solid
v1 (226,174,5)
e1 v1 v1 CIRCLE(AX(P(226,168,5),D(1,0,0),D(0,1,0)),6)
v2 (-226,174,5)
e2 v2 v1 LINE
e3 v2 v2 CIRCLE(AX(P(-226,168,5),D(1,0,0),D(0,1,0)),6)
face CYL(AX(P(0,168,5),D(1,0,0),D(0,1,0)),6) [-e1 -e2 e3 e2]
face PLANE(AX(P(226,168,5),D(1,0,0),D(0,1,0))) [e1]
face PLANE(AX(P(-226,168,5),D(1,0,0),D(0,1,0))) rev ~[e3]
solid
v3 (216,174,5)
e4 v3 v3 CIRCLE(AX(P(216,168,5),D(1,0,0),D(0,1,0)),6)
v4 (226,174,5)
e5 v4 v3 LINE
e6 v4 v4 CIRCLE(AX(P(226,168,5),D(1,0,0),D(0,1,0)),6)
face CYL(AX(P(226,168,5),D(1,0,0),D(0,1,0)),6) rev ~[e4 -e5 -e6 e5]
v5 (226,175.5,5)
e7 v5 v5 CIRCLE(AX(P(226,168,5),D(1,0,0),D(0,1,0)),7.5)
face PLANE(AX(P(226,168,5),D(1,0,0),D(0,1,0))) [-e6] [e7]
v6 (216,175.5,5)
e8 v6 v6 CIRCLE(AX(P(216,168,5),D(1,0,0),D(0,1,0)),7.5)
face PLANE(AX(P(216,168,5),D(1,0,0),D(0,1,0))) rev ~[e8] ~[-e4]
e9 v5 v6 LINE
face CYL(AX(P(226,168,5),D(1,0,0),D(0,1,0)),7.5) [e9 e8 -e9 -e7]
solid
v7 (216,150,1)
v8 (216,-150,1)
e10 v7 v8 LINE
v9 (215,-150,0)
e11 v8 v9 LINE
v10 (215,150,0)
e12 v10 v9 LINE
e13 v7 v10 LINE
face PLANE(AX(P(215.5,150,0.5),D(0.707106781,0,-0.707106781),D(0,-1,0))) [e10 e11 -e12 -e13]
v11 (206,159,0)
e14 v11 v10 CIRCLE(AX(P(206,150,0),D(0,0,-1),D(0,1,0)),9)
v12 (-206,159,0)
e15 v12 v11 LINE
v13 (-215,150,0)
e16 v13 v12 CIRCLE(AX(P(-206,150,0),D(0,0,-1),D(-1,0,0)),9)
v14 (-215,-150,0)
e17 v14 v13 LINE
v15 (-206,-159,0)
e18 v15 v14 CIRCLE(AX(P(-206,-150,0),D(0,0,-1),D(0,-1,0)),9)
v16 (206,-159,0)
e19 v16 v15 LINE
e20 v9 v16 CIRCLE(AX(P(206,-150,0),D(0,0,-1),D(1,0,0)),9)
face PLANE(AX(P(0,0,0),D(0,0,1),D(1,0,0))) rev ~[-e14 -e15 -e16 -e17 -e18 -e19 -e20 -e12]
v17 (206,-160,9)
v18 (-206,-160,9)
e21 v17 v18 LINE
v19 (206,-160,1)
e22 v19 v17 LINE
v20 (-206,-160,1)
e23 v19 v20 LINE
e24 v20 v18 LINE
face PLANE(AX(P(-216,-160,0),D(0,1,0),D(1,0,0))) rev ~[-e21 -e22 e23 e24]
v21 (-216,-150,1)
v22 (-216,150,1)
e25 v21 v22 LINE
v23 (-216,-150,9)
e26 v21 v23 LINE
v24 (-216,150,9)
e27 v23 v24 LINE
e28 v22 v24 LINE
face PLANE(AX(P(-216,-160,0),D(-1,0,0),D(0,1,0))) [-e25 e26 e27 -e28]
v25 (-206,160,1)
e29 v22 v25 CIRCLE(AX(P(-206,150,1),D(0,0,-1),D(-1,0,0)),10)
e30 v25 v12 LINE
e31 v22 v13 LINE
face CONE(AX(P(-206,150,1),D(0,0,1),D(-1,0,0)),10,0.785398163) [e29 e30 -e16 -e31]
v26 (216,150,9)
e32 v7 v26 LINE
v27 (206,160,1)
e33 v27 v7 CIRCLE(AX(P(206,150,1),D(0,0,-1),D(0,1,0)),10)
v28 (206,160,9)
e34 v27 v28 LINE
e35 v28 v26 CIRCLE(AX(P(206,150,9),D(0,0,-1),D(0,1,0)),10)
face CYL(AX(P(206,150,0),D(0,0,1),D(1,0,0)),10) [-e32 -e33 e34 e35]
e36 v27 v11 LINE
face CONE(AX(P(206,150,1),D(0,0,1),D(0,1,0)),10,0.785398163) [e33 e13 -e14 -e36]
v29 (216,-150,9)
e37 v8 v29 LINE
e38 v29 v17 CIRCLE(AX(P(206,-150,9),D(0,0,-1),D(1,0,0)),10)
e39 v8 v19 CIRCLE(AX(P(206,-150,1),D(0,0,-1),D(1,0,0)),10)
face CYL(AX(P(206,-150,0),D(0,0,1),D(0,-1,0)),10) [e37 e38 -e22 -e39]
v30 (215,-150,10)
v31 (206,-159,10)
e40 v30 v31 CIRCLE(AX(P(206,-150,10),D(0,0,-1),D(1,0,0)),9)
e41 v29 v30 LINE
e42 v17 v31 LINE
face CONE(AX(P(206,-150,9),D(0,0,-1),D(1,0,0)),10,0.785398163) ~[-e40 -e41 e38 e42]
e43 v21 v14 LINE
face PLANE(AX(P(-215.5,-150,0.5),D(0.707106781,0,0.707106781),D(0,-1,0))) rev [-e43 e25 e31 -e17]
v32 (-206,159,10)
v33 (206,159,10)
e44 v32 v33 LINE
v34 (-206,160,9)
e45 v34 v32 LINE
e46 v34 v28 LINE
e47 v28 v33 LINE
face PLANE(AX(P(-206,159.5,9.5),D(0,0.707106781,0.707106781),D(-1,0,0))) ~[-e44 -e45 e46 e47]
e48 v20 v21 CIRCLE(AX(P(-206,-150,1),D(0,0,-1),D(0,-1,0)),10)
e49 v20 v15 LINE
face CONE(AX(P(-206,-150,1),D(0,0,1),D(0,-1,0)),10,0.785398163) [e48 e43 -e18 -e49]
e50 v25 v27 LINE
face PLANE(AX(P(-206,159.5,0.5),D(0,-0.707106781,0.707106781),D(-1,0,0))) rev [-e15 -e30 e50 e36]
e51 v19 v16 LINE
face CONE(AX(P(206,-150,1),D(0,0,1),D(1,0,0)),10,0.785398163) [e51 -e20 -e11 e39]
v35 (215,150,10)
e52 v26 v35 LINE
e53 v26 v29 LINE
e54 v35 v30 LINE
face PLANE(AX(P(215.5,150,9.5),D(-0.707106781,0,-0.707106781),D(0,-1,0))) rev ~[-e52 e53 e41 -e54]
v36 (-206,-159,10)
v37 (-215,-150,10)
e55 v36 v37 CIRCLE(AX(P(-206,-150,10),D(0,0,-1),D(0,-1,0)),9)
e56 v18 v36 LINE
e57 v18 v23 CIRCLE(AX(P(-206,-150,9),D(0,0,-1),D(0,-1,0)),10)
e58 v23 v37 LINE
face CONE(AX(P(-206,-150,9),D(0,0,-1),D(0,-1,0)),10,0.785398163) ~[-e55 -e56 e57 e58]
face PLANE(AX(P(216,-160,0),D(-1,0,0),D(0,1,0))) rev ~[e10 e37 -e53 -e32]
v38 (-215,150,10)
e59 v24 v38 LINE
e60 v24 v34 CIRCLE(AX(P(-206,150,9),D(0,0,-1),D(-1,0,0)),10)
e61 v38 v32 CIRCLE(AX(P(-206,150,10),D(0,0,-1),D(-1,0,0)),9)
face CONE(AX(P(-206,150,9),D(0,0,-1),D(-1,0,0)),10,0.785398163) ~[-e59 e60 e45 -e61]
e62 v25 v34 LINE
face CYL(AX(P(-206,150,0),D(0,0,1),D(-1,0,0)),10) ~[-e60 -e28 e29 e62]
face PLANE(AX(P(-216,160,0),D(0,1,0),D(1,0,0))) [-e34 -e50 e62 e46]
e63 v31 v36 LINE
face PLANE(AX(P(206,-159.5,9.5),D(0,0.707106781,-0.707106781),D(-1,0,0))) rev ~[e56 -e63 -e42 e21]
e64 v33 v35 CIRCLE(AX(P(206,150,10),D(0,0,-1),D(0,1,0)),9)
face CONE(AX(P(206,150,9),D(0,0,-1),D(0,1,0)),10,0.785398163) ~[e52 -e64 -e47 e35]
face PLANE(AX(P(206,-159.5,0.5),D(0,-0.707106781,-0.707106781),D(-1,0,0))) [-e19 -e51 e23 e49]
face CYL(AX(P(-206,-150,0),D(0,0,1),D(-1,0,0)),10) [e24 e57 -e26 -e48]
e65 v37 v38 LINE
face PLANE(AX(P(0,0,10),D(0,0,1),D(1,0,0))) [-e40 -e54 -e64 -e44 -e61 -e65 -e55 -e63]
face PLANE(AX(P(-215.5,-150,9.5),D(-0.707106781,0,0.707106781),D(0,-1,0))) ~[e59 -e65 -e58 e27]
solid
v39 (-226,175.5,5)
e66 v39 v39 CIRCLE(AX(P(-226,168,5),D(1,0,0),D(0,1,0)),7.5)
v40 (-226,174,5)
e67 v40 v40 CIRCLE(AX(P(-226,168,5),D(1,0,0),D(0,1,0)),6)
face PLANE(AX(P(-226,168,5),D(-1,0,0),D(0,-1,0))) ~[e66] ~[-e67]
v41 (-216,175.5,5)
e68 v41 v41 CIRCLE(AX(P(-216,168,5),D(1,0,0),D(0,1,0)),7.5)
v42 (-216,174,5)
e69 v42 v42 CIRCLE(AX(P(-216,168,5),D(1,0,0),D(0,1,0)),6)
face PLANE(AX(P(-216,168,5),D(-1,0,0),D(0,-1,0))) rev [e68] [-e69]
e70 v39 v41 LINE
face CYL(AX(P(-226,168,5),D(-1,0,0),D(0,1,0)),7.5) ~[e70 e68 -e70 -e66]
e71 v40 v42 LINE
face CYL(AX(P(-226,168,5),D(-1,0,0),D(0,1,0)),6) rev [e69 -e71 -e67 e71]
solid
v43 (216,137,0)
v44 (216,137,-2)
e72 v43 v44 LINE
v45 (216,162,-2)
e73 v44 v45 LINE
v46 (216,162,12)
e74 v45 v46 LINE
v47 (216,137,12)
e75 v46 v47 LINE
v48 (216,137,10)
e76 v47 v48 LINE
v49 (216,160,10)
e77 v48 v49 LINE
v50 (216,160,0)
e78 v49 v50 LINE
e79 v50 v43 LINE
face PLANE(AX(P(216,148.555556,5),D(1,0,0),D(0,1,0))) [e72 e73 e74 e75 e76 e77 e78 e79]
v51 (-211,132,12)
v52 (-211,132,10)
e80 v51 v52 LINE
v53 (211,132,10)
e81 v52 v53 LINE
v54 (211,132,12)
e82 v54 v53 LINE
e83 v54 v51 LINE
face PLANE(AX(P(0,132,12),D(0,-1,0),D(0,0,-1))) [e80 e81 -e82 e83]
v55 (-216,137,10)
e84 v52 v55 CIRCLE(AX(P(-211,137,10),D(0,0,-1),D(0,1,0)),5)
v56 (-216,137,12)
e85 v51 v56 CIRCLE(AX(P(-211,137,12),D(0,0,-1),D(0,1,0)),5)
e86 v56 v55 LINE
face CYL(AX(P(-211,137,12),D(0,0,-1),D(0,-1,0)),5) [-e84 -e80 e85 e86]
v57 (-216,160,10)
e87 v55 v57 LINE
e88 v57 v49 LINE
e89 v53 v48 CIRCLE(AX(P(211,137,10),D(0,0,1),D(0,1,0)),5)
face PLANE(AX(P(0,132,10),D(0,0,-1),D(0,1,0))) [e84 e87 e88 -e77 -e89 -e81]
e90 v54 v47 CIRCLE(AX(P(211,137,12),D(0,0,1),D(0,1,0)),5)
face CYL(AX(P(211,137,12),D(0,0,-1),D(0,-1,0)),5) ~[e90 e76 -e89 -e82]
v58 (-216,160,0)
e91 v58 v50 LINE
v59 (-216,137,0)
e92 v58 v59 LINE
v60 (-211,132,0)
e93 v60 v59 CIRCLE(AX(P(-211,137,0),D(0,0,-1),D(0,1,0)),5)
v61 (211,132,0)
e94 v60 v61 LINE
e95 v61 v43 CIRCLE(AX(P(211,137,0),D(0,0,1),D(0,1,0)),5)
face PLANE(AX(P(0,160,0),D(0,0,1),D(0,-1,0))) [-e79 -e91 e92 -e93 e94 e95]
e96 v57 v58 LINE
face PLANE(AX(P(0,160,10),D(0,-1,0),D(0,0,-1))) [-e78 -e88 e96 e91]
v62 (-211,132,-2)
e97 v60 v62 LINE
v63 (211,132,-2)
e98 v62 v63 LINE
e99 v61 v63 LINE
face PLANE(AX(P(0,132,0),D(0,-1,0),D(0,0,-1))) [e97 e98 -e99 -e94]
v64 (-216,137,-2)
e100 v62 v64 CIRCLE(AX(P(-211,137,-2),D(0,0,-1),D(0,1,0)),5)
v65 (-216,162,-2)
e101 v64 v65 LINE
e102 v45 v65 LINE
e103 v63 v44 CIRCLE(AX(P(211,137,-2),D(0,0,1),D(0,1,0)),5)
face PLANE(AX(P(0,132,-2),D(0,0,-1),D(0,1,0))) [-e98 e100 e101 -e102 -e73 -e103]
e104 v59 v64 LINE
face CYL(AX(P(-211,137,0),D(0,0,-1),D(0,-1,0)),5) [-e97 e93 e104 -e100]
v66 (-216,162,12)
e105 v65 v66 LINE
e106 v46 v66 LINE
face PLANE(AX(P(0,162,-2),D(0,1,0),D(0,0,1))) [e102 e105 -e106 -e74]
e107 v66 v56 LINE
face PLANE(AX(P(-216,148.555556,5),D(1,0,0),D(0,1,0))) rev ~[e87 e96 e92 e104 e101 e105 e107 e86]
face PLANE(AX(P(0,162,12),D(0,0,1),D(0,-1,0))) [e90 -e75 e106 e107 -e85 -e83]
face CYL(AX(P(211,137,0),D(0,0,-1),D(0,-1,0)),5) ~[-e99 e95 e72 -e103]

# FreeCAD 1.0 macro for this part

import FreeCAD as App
import Part
import Sketcher

V = App.Vector
Q = App.Units.Quantity


def edges_at(feature, points):
    """Names of the edges that pass closest to the given points."""
    edges = feature.Shape.Edges
    near = lambda p: min(range(len(edges)), key=lambda i: edges[i].distToShape(Part.Vertex(*p))[0])
    return sorted({f"Edge{near(p) + 1}" for p in points})

doc = App.newDocument("Part")
params = doc.addObject("Spreadsheet::Sheet", "Params")
for row, (alias, value) in enumerate([
    ("sketch1_width", "432 mm"),
    ("sketch1_height", "320 mm"),
    ("pad1_length", "10 mm"),
    ("fillet_radius", "10 mm"),
    ("chamfer_size", "1 mm"),
    ("sketch2_width", "28 mm"),
    ("sketch2_width2", "30 mm"),
    ("sketch2_height", "2 mm"),
    ("sketch2_height2", "10 mm"),
    ("pad2_length", "432 mm"),
    ("fillet2_radius", "5 mm"),
    ("sketch3_diameter", "12 mm"),
    ("pad3_length", "452 mm"),
    ("sketch4_diameter", "15 mm"),
    ("sketch4_diameter2", "12 mm"),
    ("pad4_length", "10 mm"),
], start=1):
    params.set(f"A{row}", alias)
    params.set(f"B{row}", "=" + value)
    params.setAlias(f"B{row}", alias)

body = doc.addObject("PartDesign::Body", "Body")

sketch1 = body.newObject("Sketcher::SketchObject", "Sketch")
sketch1.AttachmentSupport = (doc.getObject("XY_Plane"), [""])
sketch1.MapMode = "FlatFace"
sketch1.addGeometry(Part.LineSegment(V(-216, 160, 0), V(-216, -160, 0)), False)
sketch1.addGeometry(Part.LineSegment(V(-216, -160, 0), V(216, -160, 0)), False)
sketch1.addGeometry(Part.LineSegment(V(216, -160, 0), V(216, 160, 0)), False)
sketch1.addGeometry(Part.LineSegment(V(216, 160, 0), V(-216, 160, 0)), False)
sketch1.addConstraint(Sketcher.Constraint("Coincident", 0, 2, 1, 1))
sketch1.addConstraint(Sketcher.Constraint("Coincident", 1, 2, 2, 1))
sketch1.addConstraint(Sketcher.Constraint("Coincident", 2, 2, 3, 1))
sketch1.addConstraint(Sketcher.Constraint("Coincident", 3, 2, 0, 1))
sketch1.addConstraint(Sketcher.Constraint("Vertical", 0))
sketch1.addConstraint(Sketcher.Constraint("Horizontal", 1))
sketch1.addConstraint(Sketcher.Constraint("Vertical", 2))
sketch1.addConstraint(Sketcher.Constraint("Horizontal", 3))
sketch1.addConstraint(Sketcher.Constraint("Symmetric", 0, 2, 2, 2, -1, 1))
sketch1.addConstraint(Sketcher.Constraint("DistanceX", 1, 1, 1, 2, Q("432 mm")))
sketch1.addConstraint(Sketcher.Constraint("DistanceY", 0, 2, 0, 1, Q("320 mm")))
sketch1.setExpression("Constraints[9]", "Params.sketch1_width")
sketch1.setExpression("Constraints[10]", "Params.sketch1_height")
pad1 = body.newObject("PartDesign::Pad", "Pad")
pad1.Profile = sketch1
pad1.setExpression("Length", "Params.pad1_length")
doc.recompute()

fillet = body.newObject("PartDesign::Fillet", "Fillet")
fillet.Base = (pad1, edges_at(pad1, [
    (216, -160, 5),
    (-216, -160, 5),
    (216, 160, 5),
    (-216, 160, 5),
]))
fillet.setExpression("Radius", "Params.fillet_radius")
doc.recompute()

chamfer = body.newObject("PartDesign::Chamfer", "Chamfer")
chamfer.Base = (fillet, edges_at(fillet, [
    (-216, 0, 10),
    (-213.071, 157.071, 10),
    (-213.071, -157.071, 10),
    (0, 160, 10),
    (0, -160, 10),
    (213.071, 157.071, 10),
    (213.071, -157.071, 10),
    (216, 0, 10),
    (-216, 0, 0),
    (-213.071, 157.071, 0),
    (-213.071, -157.071, 0),
    (0, 160, 0),
    (0, -160, 0),
    (213.071, 157.071, 0),
    (213.071, -157.071, 0),
    (216, 0, 0),
]))
chamfer.setExpression("Size", "Params.chamfer_size")
body2 = doc.addObject("PartDesign::Body", "Body001")

sketch2 = body2.newObject("Sketcher::SketchObject", "Sketch001")
sketch2.AttachmentSupport = (doc.getObject("YZ_Plane001"), [""])
sketch2.MapMode = "FlatFace"
sketch2.addGeometry(Part.LineSegment(V(132, 12, 0), V(132, 10, 0)), False)
sketch2.addGeometry(Part.LineSegment(V(132, 10, 0), V(160, 10, 0)), False)
sketch2.addGeometry(Part.LineSegment(V(160, 10, 0), V(160, 0, 0)), False)
sketch2.addGeometry(Part.LineSegment(V(160, 0, 0), V(132, 0, 0)), False)
sketch2.addGeometry(Part.LineSegment(V(132, 0, 0), V(132, -2, 0)), False)
sketch2.addGeometry(Part.LineSegment(V(132, -2, 0), V(162, -2, 0)), False)
sketch2.addGeometry(Part.LineSegment(V(162, -2, 0), V(162, 12, 0)), False)
sketch2.addGeometry(Part.LineSegment(V(162, 12, 0), V(132, 12, 0)), False)
sketch2.addConstraint(Sketcher.Constraint("Coincident", 0, 2, 1, 1))
sketch2.addConstraint(Sketcher.Constraint("Coincident", 1, 2, 2, 1))
sketch2.addConstraint(Sketcher.Constraint("Coincident", 2, 2, 3, 1))
sketch2.addConstraint(Sketcher.Constraint("Coincident", 3, 2, 4, 1))
sketch2.addConstraint(Sketcher.Constraint("Coincident", 4, 2, 5, 1))
sketch2.addConstraint(Sketcher.Constraint("Coincident", 5, 2, 6, 1))
sketch2.addConstraint(Sketcher.Constraint("Coincident", 6, 2, 7, 1))
sketch2.addConstraint(Sketcher.Constraint("Coincident", 7, 2, 0, 1))
sketch2.addConstraint(Sketcher.Constraint("Vertical", 0))
sketch2.addConstraint(Sketcher.Constraint("Horizontal", 1))
sketch2.addConstraint(Sketcher.Constraint("Vertical", 2))
sketch2.addConstraint(Sketcher.Constraint("Horizontal", 3))
sketch2.addConstraint(Sketcher.Constraint("Vertical", 4))
sketch2.addConstraint(Sketcher.Constraint("Horizontal", 5))
sketch2.addConstraint(Sketcher.Constraint("Vertical", 6))
sketch2.addConstraint(Sketcher.Constraint("Horizontal", 7))
sketch2.addConstraint(Sketcher.Constraint("PointOnObject", 2, 2, -1))
sketch2.addConstraint(Sketcher.Constraint("Vertical", 0, 2, 3, 2))
sketch2.addConstraint(Sketcher.Constraint("Equal", 0, 4))
sketch2.addConstraint(Sketcher.Constraint("DistanceX", 1, 1, 1, 2, Q("28 mm")))
sketch2.addConstraint(Sketcher.Constraint("DistanceX", 5, 1, 5, 2, Q("30 mm")))
sketch2.addConstraint(Sketcher.Constraint("DistanceY", 0, 2, 0, 1, Q("2 mm")))
sketch2.addConstraint(Sketcher.Constraint("DistanceY", 2, 2, 2, 1, Q("10 mm")))
sketch2.addConstraint(Sketcher.Constraint("DistanceX", -1, 1, 0, 2, Q("132 mm")))
sketch2.setExpression("Constraints[19]", "Params.sketch2_width")
sketch2.setExpression("Constraints[20]", "Params.sketch2_width2")
sketch2.setExpression("Constraints[21]", "Params.sketch2_height")
sketch2.setExpression("Constraints[22]", "Params.sketch2_height2")
pad2 = body2.newObject("PartDesign::Pad", "Pad001")
pad2.Profile = sketch2
pad2.setExpression("Length", "Params.pad2_length")
pad2.Midplane = True
doc.recompute()

fillet2 = body2.newObject("PartDesign::Fillet", "Fillet001")
fillet2.Base = (pad2, edges_at(pad2, [
    (-216, 132, 11),
    (-216, 132, -1),
    (216, 132, 11),
    (216, 132, -1),
]))
fillet2.setExpression("Radius", "Params.fillet2_radius")
body3 = doc.addObject("PartDesign::Body", "Body002")

sketch3 = body3.newObject("Sketcher::SketchObject", "Sketch002")
sketch3.AttachmentSupport = (doc.getObject("YZ_Plane002"), [""])
sketch3.MapMode = "FlatFace"
sketch3.addGeometry(Part.Circle(V(168, 5, 0), V(0, 0, 1), 6), False)
sketch3.addConstraint(Sketcher.Constraint("Diameter", 0, Q("12 mm")))
sketch3.addConstraint(Sketcher.Constraint("DistanceX", -1, 1, 0, 3, Q("168 mm")))
sketch3.addConstraint(Sketcher.Constraint("DistanceY", -1, 1, 0, 3, Q("5 mm")))
sketch3.setExpression("Constraints[0]", "Params.sketch3_diameter")
pad3 = body3.newObject("PartDesign::Pad", "Pad002")
pad3.Profile = sketch3
pad3.setExpression("Length", "Params.pad3_length")
pad3.Midplane = True
body4 = doc.addObject("PartDesign::Body", "Body003")

sketch4 = body4.newObject("Sketcher::SketchObject", "Sketch003")
sketch4.AttachmentSupport = (doc.getObject("YZ_Plane003"), [""])
sketch4.MapMode = "FlatFace"
sketch4.AttachmentOffset = App.Placement(V(0, 0, 226), App.Rotation())
sketch4.addGeometry(Part.Circle(V(168, 5, 0), V(0, 0, 1), 8), False)
sketch4.addGeometry(Part.Circle(V(168, 5, 0), V(0, 0, 1), 6), False)
sketch4.addConstraint(Sketcher.Constraint("Coincident", 1, 3, 0, 3))
sketch4.addConstraint(Sketcher.Constraint("Diameter", 0, Q("15 mm")))
sketch4.addConstraint(Sketcher.Constraint("Diameter", 1, Q("12 mm")))
sketch4.addConstraint(Sketcher.Constraint("DistanceX", -1, 1, 0, 3, Q("168 mm")))
sketch4.addConstraint(Sketcher.Constraint("DistanceY", -1, 1, 0, 3, Q("5 mm")))
sketch4.setExpression("Constraints[1]", "Params.sketch4_diameter")
sketch4.setExpression("Constraints[2]", "Params.sketch4_diameter2")
pad4 = body4.newObject("PartDesign::Pad", "Pad003")
pad4.Profile = sketch4
pad4.setExpression("Length", "Params.pad4_length")
pad4.Reversed = True
body5 = doc.addObject("PartDesign::Body", "Body004")
doc.recompute()

mirroring = doc.addObject("Part::Mirroring", "Mirroring")
mirroring.Source = body4
mirroring.Base = V(0, 0, 0)
mirroring.Normal = V(1, 0, 0)
body5.BaseFeature = mirroring
doc.recompute()
mirroring.Visibility = False

doc.recompute()
